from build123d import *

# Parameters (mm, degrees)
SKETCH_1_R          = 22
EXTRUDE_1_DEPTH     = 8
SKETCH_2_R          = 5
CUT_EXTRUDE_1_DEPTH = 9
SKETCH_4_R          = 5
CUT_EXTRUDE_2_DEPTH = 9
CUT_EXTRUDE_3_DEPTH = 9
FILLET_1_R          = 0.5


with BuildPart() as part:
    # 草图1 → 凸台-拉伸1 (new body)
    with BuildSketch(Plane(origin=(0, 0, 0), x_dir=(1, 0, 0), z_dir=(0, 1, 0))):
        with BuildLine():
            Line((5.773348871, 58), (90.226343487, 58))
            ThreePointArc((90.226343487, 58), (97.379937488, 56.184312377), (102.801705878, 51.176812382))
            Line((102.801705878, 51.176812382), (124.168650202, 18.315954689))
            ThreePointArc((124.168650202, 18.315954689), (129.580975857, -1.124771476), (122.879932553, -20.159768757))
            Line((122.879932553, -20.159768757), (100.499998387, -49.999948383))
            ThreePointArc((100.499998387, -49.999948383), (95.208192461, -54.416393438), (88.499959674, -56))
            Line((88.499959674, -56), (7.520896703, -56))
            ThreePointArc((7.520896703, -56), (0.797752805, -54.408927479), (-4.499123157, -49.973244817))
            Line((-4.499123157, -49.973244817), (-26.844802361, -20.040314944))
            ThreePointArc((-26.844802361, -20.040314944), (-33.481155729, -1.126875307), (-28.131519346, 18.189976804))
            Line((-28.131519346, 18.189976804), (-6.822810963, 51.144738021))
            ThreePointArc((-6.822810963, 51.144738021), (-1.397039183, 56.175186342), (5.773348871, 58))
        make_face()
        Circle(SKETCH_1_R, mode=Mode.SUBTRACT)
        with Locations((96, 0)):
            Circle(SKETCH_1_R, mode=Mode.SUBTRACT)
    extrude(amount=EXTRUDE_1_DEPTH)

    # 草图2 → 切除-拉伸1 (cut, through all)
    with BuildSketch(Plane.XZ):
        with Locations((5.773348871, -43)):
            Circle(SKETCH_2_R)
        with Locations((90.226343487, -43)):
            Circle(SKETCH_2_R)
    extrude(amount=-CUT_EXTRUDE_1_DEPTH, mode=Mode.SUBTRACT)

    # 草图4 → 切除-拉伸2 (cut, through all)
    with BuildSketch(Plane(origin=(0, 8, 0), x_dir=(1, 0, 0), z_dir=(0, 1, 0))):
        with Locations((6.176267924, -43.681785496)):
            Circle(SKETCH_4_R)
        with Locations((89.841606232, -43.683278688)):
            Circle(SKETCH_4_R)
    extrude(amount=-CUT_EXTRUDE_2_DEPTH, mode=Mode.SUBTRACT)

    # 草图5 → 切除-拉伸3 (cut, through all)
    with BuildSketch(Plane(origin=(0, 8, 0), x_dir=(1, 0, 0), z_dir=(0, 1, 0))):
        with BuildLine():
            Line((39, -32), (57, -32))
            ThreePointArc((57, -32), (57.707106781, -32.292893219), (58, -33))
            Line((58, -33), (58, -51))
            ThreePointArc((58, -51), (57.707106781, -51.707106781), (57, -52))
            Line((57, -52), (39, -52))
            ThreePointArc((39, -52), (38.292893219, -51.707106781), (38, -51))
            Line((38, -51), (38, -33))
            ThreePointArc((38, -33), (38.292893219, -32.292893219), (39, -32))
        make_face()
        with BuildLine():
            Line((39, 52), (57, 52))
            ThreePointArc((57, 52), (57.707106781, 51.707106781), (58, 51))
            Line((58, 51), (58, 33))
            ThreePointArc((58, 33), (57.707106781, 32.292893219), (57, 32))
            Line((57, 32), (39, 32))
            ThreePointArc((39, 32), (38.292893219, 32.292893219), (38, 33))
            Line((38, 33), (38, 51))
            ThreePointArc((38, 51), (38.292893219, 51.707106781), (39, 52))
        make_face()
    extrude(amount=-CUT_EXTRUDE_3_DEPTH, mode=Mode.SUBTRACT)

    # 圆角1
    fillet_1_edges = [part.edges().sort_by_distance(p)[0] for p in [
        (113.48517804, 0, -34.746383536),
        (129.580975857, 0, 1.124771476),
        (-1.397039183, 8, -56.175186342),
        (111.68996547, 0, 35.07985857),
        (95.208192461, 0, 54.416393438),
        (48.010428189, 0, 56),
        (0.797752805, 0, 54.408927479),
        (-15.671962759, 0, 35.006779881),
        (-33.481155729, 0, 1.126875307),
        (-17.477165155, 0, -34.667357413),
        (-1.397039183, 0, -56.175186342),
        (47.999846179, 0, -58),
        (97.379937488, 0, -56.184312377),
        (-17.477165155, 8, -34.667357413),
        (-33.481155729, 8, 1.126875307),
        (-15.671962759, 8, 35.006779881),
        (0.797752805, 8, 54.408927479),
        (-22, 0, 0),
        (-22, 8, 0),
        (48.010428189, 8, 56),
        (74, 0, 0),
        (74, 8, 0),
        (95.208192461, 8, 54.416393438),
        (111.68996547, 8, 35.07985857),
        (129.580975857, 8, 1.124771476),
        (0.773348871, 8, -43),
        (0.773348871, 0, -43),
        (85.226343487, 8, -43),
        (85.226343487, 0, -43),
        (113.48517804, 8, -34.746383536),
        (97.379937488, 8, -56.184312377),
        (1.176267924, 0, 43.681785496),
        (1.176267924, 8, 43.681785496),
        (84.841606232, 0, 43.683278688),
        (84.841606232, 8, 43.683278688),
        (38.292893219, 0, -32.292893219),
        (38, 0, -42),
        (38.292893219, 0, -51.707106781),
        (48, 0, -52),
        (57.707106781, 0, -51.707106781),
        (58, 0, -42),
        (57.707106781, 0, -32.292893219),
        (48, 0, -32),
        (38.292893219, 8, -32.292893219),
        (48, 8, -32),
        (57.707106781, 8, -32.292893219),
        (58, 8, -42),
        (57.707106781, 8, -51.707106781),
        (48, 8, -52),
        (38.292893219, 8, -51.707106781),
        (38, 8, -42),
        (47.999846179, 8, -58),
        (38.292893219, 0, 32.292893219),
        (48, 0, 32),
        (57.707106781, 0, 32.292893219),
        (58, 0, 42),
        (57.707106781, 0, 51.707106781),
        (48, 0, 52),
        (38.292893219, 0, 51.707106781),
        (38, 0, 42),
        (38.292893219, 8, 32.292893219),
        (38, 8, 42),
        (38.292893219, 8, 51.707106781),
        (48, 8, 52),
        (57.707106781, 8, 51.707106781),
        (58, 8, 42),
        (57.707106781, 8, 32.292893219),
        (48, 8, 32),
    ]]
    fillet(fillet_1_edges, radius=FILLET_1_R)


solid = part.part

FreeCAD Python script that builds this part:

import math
import FreeCAD as App
import Part
import Sketcher
from FreeCAD import Vector
Q = App.Units.Quantity


def edges_at(feature, points):
    """Names of the edges that pass closest to the given points."""
    edges = feature.Shape.Edges
    near = lambda p: min(range(len(edges)), key=lambda i: edges[i].distToShape(Part.Vertex(*p))[0])
    return sorted({f"Edge{near(p) + 1}" for p in points})

doc = App.newDocument("Part")
body = doc.addObject("PartDesign::Body", "Body")

sketch1 = doc.addObject("Sketcher::SketchObject", "Sketch")
body.addObject(sketch1)
sketch1.AttachmentSupport = (doc.XZ_Plane, [""])
sketch1.MapMode = "FlatFace"
sketch1.addGeometry([
    Part.LineSegment(Vector(90, -58, 0), Vector(6, -58, 0)),
    Part.ArcOfCircle(Part.Circle(Vector(6, -43, 0), Vector(0, 0, 1), 15), math.radians(-147), math.radians(-90)),
    Part.LineSegment(Vector(-7, -51, 0), Vector(-28, -18, 0)),
    Part.ArcOfCircle(Part.Circle(Vector(0, 0, 0), Vector(0, 0, 1), 34), math.radians(143), math.radians(213)),
    Part.LineSegment(Vector(-27, 20, 0), Vector(-4, 50, 0)),
    Part.ArcOfCircle(Part.Circle(Vector(8, 41, 0), Vector(0, 0, 1), 15), math.radians(90), math.radians(143)),
    Part.LineSegment(Vector(8, 56, 0), Vector(88, 56, 0)),
    Part.ArcOfCircle(Part.Circle(Vector(88, 41, 0), Vector(0, 0, 1), 15), math.radians(37), math.radians(90)),
    Part.LineSegment(Vector(100, 50, 0), Vector(123, 20, 0)),
    Part.ArcOfCircle(Part.Circle(Vector(96, 0, 0), Vector(0, 0, 1), 34), math.radians(-33), math.radians(37)),
    Part.LineSegment(Vector(124, -18, 0), Vector(103, -51, 0)),
    Part.ArcOfCircle(Part.Circle(Vector(90, -43, 0), Vector(0, 0, 1), 15), math.radians(-90), math.radians(-33)),
    Part.Circle(Vector(96, 0, 0), Vector(0, 0, 1), 22),
    Part.Circle(Vector(0, 0, 0), Vector(0, 0, 1), 22),
], False)
sketch1.addConstraint([
    Sketcher.Constraint("Tangent", 0, 2, 1, 2),
    Sketcher.Constraint("Tangent", 1, 1, 2, 1),
    Sketcher.Constraint("Tangent", 2, 2, 3, 2),
    Sketcher.Constraint("Tangent", 3, 1, 4, 1),
    Sketcher.Constraint("Tangent", 4, 2, 5, 2),
    Sketcher.Constraint("Tangent", 5, 1, 6, 1),
    Sketcher.Constraint("Tangent", 6, 2, 7, 2),
    Sketcher.Constraint("Tangent", 7, 1, 8, 1),
    Sketcher.Constraint("Tangent", 8, 2, 9, 2),
    Sketcher.Constraint("Tangent", 9, 1, 10, 1),
    Sketcher.Constraint("Tangent", 10, 2, 11, 2),
    Sketcher.Constraint("Tangent", 11, 1, 0, 1),
    Sketcher.Constraint("Horizontal", 0),
    Sketcher.Constraint("Horizontal", 6),
    Sketcher.Constraint("Coincident", 3, 3, -1, 1),
    Sketcher.Constraint("Coincident", 13, 3, -1, 1),
    Sketcher.Constraint("Coincident", 12, 3, 9, 3),
    Sketcher.Constraint("Equal", 1, 5),
    Sketcher.Constraint("Equal", 5, 7),
    Sketcher.Constraint("Equal", 7, 11),
    Sketcher.Constraint("Equal", 12, 13),
    Sketcher.Constraint("PointOnObject", 9, 3, -1),
    Sketcher.Constraint("Diameter", 12, Q("44 mm")),
    Sketcher.Constraint("Radius", 1, Q("15 mm")),
    Sketcher.Constraint("DistanceY", 1, 3, -1, 1, Q("43 mm")),
    Sketcher.Constraint("DistanceY", -1, 1, 5, 3, Q("41 mm")),
    Sketcher.Constraint("DistanceX", -1, 1, 9, 3, Q("96 mm")),
    Sketcher.Constraint("DistanceX", -1, 1, 7, 1, Q("100.499998 mm")),
    Sketcher.Constraint("Radius", 3, Q("33.500114 mm")),
    Sketcher.Constraint("Radius", 9, Q("33.599807 mm")),
    Sketcher.Constraint("DistanceX", 3, 1, 5, 3, Q("34.365699 mm")),
    Sketcher.Constraint("Distance", 2, Q("39.243819 mm")),
    Sketcher.Constraint("DistanceX", 0, 2, 0, 1, Q("84.452995 mm")),
])
pad1 = doc.addObject("PartDesign::Pad", "Pad")
body.addObject(pad1)
pad1.Profile = sketch1
pad1.Length = 8
pad1.Reversed = True

sketch2 = doc.addObject("Sketcher::SketchObject", "Sketch001")
body.addObject(sketch2)
sketch2.AttachmentSupport = (doc.XZ_Plane, [""])
sketch2.MapMode = "FlatFace"
sketch2.addGeometry([
    Part.Circle(Vector(6, -43, 0), Vector(0, 0, 1), 5),
    Part.Circle(Vector(90, -43, 0), Vector(0, 0, 1), 5),
], False)
sketch2.addConstraint([
    Sketcher.Constraint("Equal", 0, 1),
    Sketcher.Constraint("Horizontal", 0, 3, 1, 3),
    Sketcher.Constraint("Diameter", 0, Q("10 mm")),
    Sketcher.Constraint("DistanceY", 0, 3, -1, 1, Q("43 mm")),
    Sketcher.Constraint("DistanceX", -1, 1, 0, 3, Q("5.773349 mm")),
    Sketcher.Constraint("DistanceX", -1, 1, 1, 3, Q("90.226343 mm")),
])
pocket1 = doc.addObject("PartDesign::Pocket", "Pocket")
body.addObject(pocket1)
pocket1.Profile = sketch2
pocket1.Type = "ThroughAll"

sketch3 = doc.addObject("Sketcher::SketchObject", "Sketch002")
body.addObject(sketch3)
sketch3.AttachmentSupport = (doc.XZ_Plane, [""])
sketch3.MapMode = "FlatFace"
sketch3.AttachmentOffset = App.Placement(Vector(0, 0, -8), App.Rotation())
sketch3.addGeometry([
    Part.Circle(Vector(6, 44, 0), Vector(0, 0, 1), 5),
    Part.Circle(Vector(90, 44, 0), Vector(0, 0, 1), 5),
], False)
sketch3.addConstraint([
    Sketcher.Constraint("Equal", 0, 1),
    Sketcher.Constraint("Diameter", 0, Q("10 mm")),
    Sketcher.Constraint("DistanceY", -1, 1, 1, 3, Q("43.683279 mm")),
    Sketcher.Constraint("DistanceX", 0, 3, 1, 3, Q("83.665338 mm")),
    Sketcher.Constraint("DistanceX", -1, 1, 0, 3, Q("6.176268 mm")),
    Sketcher.Constraint("DistanceY", -1, 1, 0, 3, Q("43.681785 mm")),
])
pocket2 = doc.addObject("PartDesign::Pocket", "Pocket001")
body.addObject(pocket2)
pocket2.Profile = sketch3
pocket2.Type = "ThroughAll"
pocket2.Reversed = True

sketch4 = doc.addObject("Sketcher::SketchObject", "Sketch003")
body.addObject(sketch4)
sketch4.AttachmentSupport = (doc.XZ_Plane, [""])
sketch4.MapMode = "FlatFace"
sketch4.AttachmentOffset = App.Placement(Vector(0, 0, -8), App.Rotation())
sketch4.addGeometry([
    Part.LineSegment(Vector(57, 32, 0), Vector(39, 32, 0)),
    Part.ArcOfCircle(Part.Circle(Vector(39, 33, 0), Vector(0, 0, 1), 1), math.radians(-180), math.radians(-90)),
    Part.LineSegment(Vector(38, 33, 0), Vector(38, 51, 0)),
    Part.ArcOfCircle(Part.Circle(Vector(39, 51, 0), Vector(0, 0, 1), 1), math.radians(90), math.radians(180)),
    Part.LineSegment(Vector(39, 52, 0), Vector(57, 52, 0)),
    Part.ArcOfCircle(Part.Circle(Vector(57, 51, 0), Vector(0, 0, 1), 1), math.radians(0), math.radians(90)),
    Part.LineSegment(Vector(58, 51, 0), Vector(58, 33, 0)),
    Part.ArcOfCircle(Part.Circle(Vector(57, 33, 0), Vector(0, 0, 1), 1), math.radians(-90), math.radians(0)),
    Part.LineSegment(Vector(57, -52, 0), Vector(39, -52, 0)),
    Part.ArcOfCircle(Part.Circle(Vector(39, -51, 0), Vector(0, 0, 1), 1), math.radians(-180), math.radians(-90)),
    Part.LineSegment(Vector(38, -51, 0), Vector(38, -33, 0)),
    Part.ArcOfCircle(Part.Circle(Vector(39, -33, 0), Vector(0, 0, 1), 1), math.radians(90), math.radians(180)),
    Part.LineSegment(Vector(39, -32, 0), Vector(57, -32, 0)),
    Part.ArcOfCircle(Part.Circle(Vector(57, -33, 0), Vector(0, 0, 1), 1), math.radians(0), math.radians(90)),
    Part.LineSegment(Vector(58, -33, 0), Vector(58, -51, 0)),
    Part.ArcOfCircle(Part.Circle(Vector(57, -51, 0), Vector(0, 0, 1), 1), math.radians(-90), math.radians(0)),
], False)
sketch4.addConstraint([
    Sketcher.Constraint("Tangent", 0, 2, 1, 2),
    Sketcher.Constraint("Tangent", 1, 1, 2, 1),
    Sketcher.Constraint("Tangent", 2, 2, 3, 2),
    Sketcher.Constraint("Tangent", 3, 1, 4, 1),
    Sketcher.Constraint("Tangent", 4, 2, 5, 2),
    Sketcher.Constraint("Tangent", 5, 1, 6, 1),
    Sketcher.Constraint("Tangent", 6, 2, 7, 2),
    Sketcher.Constraint("Tangent", 7, 1, 0, 1),
    Sketcher.Constraint("Tangent", 8, 2, 9, 2),
    Sketcher.Constraint("Tangent", 9, 1, 10, 1),
    Sketcher.Constraint("Tangent", 10, 2, 11, 2),
    Sketcher.Constraint("Tangent", 11, 1, 12, 1),
    Sketcher.Constraint("Tangent", 12, 2, 13, 2),
    Sketcher.Constraint("Tangent", 13, 1, 14, 1),
    Sketcher.Constraint("Tangent", 14, 2, 15, 2),
    Sketcher.Constraint("Tangent", 15, 1, 8, 1),
    Sketcher.Constraint("Horizontal", 0),
    Sketcher.Constraint("Vertical", 2),
    Sketcher.Constraint("Horizontal", 4),
    Sketcher.Constraint("Vertical", 6),
    Sketcher.Constraint("Horizontal", 8),
    Sketcher.Constraint("Vertical", 10),
    Sketcher.Constraint("Horizontal", 12),
    Sketcher.Constraint("Vertical", 14),
    Sketcher.Constraint("Equal", 1, 3),
    Sketcher.Constraint("Equal", 3, 5),
    Sketcher.Constraint("Equal", 5, 7),
    Sketcher.Constraint("Equal", 7, 9),
    Sketcher.Constraint("Equal", 9, 11),
    Sketcher.Constraint("Equal", 11, 13),
    Sketcher.Constraint("Equal", 13, 15),
    Sketcher.Constraint("Symmetric", 3, 3, 9, 3, -1),
    Sketcher.Constraint("Symmetric", 7, 3, 13, 3, -1),
    Sketcher.Constraint("Equal", 12, 2),
    Sketcher.Constraint("Radius", 1, Q("1 mm")),
    Sketcher.Constraint("DistanceX", 0, 2, 0, 1, Q("18 mm")),
    Sketcher.Constraint("DistanceX", -1, 1, 1, 3, Q("39 mm")),
    Sketcher.Constraint("DistanceY", -1, 1, 1, 3, Q("33 mm")),
])
pocket3 = doc.addObject("PartDesign::Pocket", "Pocket002")
body.addObject(pocket3)
pocket3.Profile = sketch4
pocket3.Type = "ThroughAll"
pocket3.Reversed = True
doc.recompute()

fillet = doc.addObject("PartDesign::Fillet", "Fillet")
body.addObject(fillet)
fillet.Base = (pocket3, edges_at(pocket3, [
    (113.485, 0, -34.746),
    (129.581, 0, 1.125),
    (-1.397, 8, -56.175),
    (111.69, 0, 35.08),
    (95.208, 0, 54.416),
    (48.01, 0, 56),
    (0.798, 0, 54.409),
    (-15.672, 0, 35.007),
    (-33.481, 0, 1.127),
    (-17.477, 0, -34.667),
    (-1.397, 0, -56.175),
    (48, 0, -58),
    (97.38, 0, -56.184),
    (-17.477, 8, -34.667),
    (-33.481, 8, 1.127),
    (-15.672, 8, 35.007),
    (0.798, 8, 54.409),
    (-22, 0, 0),
    (-22, 8, 0),
    (48.01, 8, 56),
    (74, 0, 0),
    (74, 8, 0),
    (95.208, 8, 54.416),
    (111.69, 8, 35.08),
    (129.581, 8, 1.125),
    (0.773, 8, -43),
    (0.773, 0, -43),
    (85.226, 8, -43),
    (85.226, 0, -43),
    (113.485, 8, -34.746),
    (97.38, 8, -56.184),
    (1.176, 0, 43.682),
    (1.176, 8, 43.682),
    (84.842, 0, 43.683),
    (84.842, 8, 43.683),
    (38.293, 0, -32.293),
    (38, 0, -42),
    (38.293, 0, -51.707),
    (48, 0, -52),
    (57.707, 0, -51.707),
    (58, 0, -42),
    (57.707, 0, -32.293),
    (48, 0, -32),
    (38.293, 8, -32.293),
    (48, 8, -32),
    (57.707, 8, -32.293),
    (58, 8, -42),
    (57.707, 8, -51.707),
    (48, 8, -52),
    (38.293, 8, -51.707),
    (38, 8, -42),
    (48, 8, -58),
    (38.293, 0, 32.293),
    (48, 0, 32),
    (57.707, 0, 32.293),
    (58, 0, 42),
    (57.707, 0, 51.707),
    (48, 0, 52),
    (38.293, 0, 51.707),
    (38, 0, 42),
    (38.293, 8, 32.293),
    (38, 8, 42),
    (38.293, 8, 51.707),
    (48, 8, 52),
    (57.707, 8, 51.707),
    (58, 8, 42),
    (57.707, 8, 32.293),
    (48, 8, 32),
]))
fillet.Radius = 0.5

doc.recompute()
